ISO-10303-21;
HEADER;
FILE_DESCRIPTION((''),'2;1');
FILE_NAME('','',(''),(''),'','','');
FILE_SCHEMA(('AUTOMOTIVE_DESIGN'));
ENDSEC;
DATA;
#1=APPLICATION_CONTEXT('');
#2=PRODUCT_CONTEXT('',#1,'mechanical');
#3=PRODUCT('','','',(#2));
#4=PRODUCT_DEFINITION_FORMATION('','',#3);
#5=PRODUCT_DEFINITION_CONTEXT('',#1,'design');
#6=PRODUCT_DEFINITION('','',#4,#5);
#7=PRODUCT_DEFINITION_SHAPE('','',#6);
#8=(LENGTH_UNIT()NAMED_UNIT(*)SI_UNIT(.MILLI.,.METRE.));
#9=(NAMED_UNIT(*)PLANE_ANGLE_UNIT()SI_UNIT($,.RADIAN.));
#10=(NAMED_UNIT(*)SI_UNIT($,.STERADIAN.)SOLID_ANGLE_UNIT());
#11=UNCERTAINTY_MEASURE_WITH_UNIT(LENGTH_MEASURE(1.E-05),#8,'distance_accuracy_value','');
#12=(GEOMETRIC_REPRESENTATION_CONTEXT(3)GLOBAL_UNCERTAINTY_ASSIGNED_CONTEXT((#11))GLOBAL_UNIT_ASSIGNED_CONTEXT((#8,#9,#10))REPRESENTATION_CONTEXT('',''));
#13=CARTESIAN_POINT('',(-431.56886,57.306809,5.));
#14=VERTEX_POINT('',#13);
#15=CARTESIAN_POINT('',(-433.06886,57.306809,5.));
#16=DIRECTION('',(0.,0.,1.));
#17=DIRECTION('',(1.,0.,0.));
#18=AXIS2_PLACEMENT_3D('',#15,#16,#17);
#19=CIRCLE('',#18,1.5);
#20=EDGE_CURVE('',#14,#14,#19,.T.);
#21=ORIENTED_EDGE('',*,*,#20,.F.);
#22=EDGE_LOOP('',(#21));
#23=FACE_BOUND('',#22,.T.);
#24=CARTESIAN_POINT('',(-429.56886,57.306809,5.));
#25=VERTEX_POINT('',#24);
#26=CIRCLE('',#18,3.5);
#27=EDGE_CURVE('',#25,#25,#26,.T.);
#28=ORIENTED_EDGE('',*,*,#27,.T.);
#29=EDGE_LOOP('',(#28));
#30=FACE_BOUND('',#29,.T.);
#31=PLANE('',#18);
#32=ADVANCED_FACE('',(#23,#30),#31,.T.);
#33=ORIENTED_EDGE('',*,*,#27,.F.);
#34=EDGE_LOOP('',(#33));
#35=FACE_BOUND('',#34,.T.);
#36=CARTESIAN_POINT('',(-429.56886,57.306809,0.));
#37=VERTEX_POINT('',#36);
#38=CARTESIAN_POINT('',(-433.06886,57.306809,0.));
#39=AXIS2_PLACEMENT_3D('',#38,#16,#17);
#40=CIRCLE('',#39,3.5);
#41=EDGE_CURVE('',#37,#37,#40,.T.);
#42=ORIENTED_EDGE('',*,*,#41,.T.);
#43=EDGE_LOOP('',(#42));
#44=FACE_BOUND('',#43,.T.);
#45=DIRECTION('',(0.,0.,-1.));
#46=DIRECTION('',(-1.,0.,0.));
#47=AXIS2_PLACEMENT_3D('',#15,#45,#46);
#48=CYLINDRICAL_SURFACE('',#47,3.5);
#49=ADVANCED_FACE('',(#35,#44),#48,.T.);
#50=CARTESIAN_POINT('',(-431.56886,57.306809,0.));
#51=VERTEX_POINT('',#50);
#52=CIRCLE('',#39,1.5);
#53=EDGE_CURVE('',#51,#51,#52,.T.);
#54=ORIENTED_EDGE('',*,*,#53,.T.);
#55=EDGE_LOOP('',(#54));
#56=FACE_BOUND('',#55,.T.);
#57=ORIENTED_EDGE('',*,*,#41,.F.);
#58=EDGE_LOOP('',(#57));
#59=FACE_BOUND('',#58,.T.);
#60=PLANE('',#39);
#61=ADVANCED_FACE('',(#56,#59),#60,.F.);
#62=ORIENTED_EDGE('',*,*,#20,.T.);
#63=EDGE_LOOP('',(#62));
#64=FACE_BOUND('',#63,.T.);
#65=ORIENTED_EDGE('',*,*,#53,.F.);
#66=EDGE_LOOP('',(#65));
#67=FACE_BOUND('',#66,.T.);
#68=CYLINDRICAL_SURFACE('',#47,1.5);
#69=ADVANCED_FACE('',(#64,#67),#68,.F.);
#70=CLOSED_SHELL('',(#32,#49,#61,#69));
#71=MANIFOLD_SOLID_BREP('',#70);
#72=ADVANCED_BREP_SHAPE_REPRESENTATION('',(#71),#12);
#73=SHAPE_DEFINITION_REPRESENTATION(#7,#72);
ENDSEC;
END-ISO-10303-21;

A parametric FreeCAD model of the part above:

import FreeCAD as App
import Part
import Sketcher

doc = App.newDocument("Part")
params = doc.addObject("Spreadsheet::Sheet", "Params")
for row, (alias, value) in enumerate([
    ("sketch1_diameter", "7 mm"),
    ("sketch1_diameter2", "3 mm"),
    ("pad1_length", "5 mm"),
], start=1):
    params.set(f"A{row}", alias)
    params.set(f"B{row}", "=" + value)
    params.setAlias(f"B{row}", alias)

body = doc.addObject("PartDesign::Body", "Body")

# Sketch on XY plane
sketch1 = body.newObject("Sketcher::SketchObject", "Sketch")
sketch1.AttachmentSupport = (doc.getObject("XY_Plane"), [""])
sketch1.MapMode = "FlatFace"
sketch1.addGeometry([
    Part.Circle(App.Vector(-433.1, 57.3, 0), App.Vector(0, 0, 1), 3.5),
    Part.Circle(App.Vector(-433.1, 57.3, 0), App.Vector(0, 0, 1), 1.5),
], False)
sketch1.addConstraint([
    Sketcher.Constraint("Coincident", 1, 3, 0, 3),
    Sketcher.Constraint("Diameter", 0, 7.0),
    Sketcher.Constraint("Diameter", 1, 3.0),
    Sketcher.Constraint("DistanceX", 0, 3, -1, 1, 433.06886),
    Sketcher.Constraint("DistanceY", -1, 1, 0, 3, 57.306809),
])
sketch1.setExpression("Constraints[1]", "Params.sketch1_diameter")
sketch1.setExpression("Constraints[2]", "Params.sketch1_diameter2")
pad1 = body.newObject("PartDesign::Pad", "Pad")
pad1.Profile = sketch1
pad1.setExpression("Length", "Params.pad1_length")

doc.recompute()
